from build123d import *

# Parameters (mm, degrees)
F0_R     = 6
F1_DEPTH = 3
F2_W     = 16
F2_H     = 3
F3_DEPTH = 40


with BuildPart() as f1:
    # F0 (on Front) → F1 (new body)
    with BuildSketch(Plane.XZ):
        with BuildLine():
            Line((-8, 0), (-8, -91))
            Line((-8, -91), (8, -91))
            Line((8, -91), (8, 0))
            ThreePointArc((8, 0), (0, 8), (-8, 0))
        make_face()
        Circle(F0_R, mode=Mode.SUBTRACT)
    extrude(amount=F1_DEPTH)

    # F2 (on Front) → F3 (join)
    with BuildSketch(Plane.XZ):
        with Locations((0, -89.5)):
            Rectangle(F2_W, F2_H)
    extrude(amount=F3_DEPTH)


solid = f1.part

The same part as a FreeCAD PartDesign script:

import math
import FreeCAD as App
import Part
import Sketcher
from FreeCAD import Vector
Q = App.Units.Quantity


def add_polygon(sketch, points):
    """Adds a closed chain of lines whose ends are joined by coincident constraints."""
    first, n = sketch.GeometryCount, len(points)
    for a, b in zip(points, points[1:] + points[:1]):
        sketch.addGeometry(Part.LineSegment(App.Vector(*a, 0), App.Vector(*b, 0)), False)
    for i in range(n):
        sketch.addConstraint(Sketcher.Constraint("Coincident", first + i, 2, first + (i + 1) % n, 1))

doc = App.newDocument("Part")
body = doc.addObject("PartDesign::Body", "Body")

# Sketch on XZ plane
sketch1 = body.newObject("Sketcher::SketchObject", "Sketch")
sketch1.AttachmentSupport = (doc.getObject("XZ_Plane"), [""])
sketch1.MapMode = "FlatFace"
sketch1.addGeometry(Part.LineSegment(Vector(-8, 0, 0), Vector(-8, -91, 0)), False)
sketch1.addGeometry(Part.LineSegment(Vector(-8, -91, 0), Vector(8, -91, 0)), False)
sketch1.addGeometry(Part.LineSegment(Vector(8, -91, 0), Vector(8, 0, 0)), False)
sketch1.addGeometry(Part.ArcOfCircle(Part.Circle(Vector(0, 0, 0), Vector(0, 0, 1), 8), math.radians(0), math.radians(180)), False)
sketch1.addGeometry(Part.Circle(Vector(0, 0, 0), Vector(0, 0, 1), 6), False)
sketch1.addConstraint(Sketcher.Constraint("Coincident", 0, 2, 1, 1))
sketch1.addConstraint(Sketcher.Constraint("Coincident", 1, 2, 2, 1))
sketch1.addConstraint(Sketcher.Constraint("Tangent", 2, 2, 3, 1))
sketch1.addConstraint(Sketcher.Constraint("Tangent", 3, 2, 0, 1))
sketch1.addConstraint(Sketcher.Constraint("Vertical", 0))
sketch1.addConstraint(Sketcher.Constraint("Horizontal", 1))
sketch1.addConstraint(Sketcher.Constraint("Vertical", 2))
sketch1.addConstraint(Sketcher.Constraint("Coincident", 3, 3, -1, 1))
sketch1.addConstraint(Sketcher.Constraint("Coincident", 4, 3, -1, 1))
sketch1.addConstraint(Sketcher.Constraint("Diameter", 4, Q("12 mm")))
sketch1.addConstraint(Sketcher.Constraint("Radius", 3, Q("8 mm")))
sketch1.addConstraint(Sketcher.Constraint("DistanceY", 0, 2, 0, 1, Q("91 mm")))
pad1 = body.newObject("PartDesign::Pad", "Pad")
pad1.Profile = sketch1
pad1.Length = 3

# Sketch on XZ plane
sketch2 = body.newObject("Sketcher::SketchObject", "Sketch001")
sketch2.AttachmentSupport = (doc.getObject("XZ_Plane"), [""])
sketch2.MapMode = "FlatFace"
add_polygon(sketch2, [(-8, -88), (-8, -91), (8, -91), (8, -88)])  # lines 0-3
sketch2.addConstraint(Sketcher.Constraint("Vertical", 0))
sketch2.addConstraint(Sketcher.Constraint("Horizontal", 1))
sketch2.addConstraint(Sketcher.Constraint("Vertical", 2))
sketch2.addConstraint(Sketcher.Constraint("Horizontal", 3))
sketch2.addConstraint(Sketcher.Constraint("DistanceX", 1, 1, 1, 2, Q("16 mm")))
sketch2.addConstraint(Sketcher.Constraint("DistanceY", 0, 2, 0, 1, Q("3 mm")))
sketch2.addConstraint(Sketcher.Constraint("DistanceX", 0, 2, -1, 1, Q("8 mm")))
sketch2.addConstraint(Sketcher.Constraint("DistanceY", 0, 2, -1, 1, Q("91 mm")))
pad2 = body.newObject("PartDesign::Pad", "Pad001")
pad2.Profile = sketch2
pad2.Length = 40

doc.recompute()
